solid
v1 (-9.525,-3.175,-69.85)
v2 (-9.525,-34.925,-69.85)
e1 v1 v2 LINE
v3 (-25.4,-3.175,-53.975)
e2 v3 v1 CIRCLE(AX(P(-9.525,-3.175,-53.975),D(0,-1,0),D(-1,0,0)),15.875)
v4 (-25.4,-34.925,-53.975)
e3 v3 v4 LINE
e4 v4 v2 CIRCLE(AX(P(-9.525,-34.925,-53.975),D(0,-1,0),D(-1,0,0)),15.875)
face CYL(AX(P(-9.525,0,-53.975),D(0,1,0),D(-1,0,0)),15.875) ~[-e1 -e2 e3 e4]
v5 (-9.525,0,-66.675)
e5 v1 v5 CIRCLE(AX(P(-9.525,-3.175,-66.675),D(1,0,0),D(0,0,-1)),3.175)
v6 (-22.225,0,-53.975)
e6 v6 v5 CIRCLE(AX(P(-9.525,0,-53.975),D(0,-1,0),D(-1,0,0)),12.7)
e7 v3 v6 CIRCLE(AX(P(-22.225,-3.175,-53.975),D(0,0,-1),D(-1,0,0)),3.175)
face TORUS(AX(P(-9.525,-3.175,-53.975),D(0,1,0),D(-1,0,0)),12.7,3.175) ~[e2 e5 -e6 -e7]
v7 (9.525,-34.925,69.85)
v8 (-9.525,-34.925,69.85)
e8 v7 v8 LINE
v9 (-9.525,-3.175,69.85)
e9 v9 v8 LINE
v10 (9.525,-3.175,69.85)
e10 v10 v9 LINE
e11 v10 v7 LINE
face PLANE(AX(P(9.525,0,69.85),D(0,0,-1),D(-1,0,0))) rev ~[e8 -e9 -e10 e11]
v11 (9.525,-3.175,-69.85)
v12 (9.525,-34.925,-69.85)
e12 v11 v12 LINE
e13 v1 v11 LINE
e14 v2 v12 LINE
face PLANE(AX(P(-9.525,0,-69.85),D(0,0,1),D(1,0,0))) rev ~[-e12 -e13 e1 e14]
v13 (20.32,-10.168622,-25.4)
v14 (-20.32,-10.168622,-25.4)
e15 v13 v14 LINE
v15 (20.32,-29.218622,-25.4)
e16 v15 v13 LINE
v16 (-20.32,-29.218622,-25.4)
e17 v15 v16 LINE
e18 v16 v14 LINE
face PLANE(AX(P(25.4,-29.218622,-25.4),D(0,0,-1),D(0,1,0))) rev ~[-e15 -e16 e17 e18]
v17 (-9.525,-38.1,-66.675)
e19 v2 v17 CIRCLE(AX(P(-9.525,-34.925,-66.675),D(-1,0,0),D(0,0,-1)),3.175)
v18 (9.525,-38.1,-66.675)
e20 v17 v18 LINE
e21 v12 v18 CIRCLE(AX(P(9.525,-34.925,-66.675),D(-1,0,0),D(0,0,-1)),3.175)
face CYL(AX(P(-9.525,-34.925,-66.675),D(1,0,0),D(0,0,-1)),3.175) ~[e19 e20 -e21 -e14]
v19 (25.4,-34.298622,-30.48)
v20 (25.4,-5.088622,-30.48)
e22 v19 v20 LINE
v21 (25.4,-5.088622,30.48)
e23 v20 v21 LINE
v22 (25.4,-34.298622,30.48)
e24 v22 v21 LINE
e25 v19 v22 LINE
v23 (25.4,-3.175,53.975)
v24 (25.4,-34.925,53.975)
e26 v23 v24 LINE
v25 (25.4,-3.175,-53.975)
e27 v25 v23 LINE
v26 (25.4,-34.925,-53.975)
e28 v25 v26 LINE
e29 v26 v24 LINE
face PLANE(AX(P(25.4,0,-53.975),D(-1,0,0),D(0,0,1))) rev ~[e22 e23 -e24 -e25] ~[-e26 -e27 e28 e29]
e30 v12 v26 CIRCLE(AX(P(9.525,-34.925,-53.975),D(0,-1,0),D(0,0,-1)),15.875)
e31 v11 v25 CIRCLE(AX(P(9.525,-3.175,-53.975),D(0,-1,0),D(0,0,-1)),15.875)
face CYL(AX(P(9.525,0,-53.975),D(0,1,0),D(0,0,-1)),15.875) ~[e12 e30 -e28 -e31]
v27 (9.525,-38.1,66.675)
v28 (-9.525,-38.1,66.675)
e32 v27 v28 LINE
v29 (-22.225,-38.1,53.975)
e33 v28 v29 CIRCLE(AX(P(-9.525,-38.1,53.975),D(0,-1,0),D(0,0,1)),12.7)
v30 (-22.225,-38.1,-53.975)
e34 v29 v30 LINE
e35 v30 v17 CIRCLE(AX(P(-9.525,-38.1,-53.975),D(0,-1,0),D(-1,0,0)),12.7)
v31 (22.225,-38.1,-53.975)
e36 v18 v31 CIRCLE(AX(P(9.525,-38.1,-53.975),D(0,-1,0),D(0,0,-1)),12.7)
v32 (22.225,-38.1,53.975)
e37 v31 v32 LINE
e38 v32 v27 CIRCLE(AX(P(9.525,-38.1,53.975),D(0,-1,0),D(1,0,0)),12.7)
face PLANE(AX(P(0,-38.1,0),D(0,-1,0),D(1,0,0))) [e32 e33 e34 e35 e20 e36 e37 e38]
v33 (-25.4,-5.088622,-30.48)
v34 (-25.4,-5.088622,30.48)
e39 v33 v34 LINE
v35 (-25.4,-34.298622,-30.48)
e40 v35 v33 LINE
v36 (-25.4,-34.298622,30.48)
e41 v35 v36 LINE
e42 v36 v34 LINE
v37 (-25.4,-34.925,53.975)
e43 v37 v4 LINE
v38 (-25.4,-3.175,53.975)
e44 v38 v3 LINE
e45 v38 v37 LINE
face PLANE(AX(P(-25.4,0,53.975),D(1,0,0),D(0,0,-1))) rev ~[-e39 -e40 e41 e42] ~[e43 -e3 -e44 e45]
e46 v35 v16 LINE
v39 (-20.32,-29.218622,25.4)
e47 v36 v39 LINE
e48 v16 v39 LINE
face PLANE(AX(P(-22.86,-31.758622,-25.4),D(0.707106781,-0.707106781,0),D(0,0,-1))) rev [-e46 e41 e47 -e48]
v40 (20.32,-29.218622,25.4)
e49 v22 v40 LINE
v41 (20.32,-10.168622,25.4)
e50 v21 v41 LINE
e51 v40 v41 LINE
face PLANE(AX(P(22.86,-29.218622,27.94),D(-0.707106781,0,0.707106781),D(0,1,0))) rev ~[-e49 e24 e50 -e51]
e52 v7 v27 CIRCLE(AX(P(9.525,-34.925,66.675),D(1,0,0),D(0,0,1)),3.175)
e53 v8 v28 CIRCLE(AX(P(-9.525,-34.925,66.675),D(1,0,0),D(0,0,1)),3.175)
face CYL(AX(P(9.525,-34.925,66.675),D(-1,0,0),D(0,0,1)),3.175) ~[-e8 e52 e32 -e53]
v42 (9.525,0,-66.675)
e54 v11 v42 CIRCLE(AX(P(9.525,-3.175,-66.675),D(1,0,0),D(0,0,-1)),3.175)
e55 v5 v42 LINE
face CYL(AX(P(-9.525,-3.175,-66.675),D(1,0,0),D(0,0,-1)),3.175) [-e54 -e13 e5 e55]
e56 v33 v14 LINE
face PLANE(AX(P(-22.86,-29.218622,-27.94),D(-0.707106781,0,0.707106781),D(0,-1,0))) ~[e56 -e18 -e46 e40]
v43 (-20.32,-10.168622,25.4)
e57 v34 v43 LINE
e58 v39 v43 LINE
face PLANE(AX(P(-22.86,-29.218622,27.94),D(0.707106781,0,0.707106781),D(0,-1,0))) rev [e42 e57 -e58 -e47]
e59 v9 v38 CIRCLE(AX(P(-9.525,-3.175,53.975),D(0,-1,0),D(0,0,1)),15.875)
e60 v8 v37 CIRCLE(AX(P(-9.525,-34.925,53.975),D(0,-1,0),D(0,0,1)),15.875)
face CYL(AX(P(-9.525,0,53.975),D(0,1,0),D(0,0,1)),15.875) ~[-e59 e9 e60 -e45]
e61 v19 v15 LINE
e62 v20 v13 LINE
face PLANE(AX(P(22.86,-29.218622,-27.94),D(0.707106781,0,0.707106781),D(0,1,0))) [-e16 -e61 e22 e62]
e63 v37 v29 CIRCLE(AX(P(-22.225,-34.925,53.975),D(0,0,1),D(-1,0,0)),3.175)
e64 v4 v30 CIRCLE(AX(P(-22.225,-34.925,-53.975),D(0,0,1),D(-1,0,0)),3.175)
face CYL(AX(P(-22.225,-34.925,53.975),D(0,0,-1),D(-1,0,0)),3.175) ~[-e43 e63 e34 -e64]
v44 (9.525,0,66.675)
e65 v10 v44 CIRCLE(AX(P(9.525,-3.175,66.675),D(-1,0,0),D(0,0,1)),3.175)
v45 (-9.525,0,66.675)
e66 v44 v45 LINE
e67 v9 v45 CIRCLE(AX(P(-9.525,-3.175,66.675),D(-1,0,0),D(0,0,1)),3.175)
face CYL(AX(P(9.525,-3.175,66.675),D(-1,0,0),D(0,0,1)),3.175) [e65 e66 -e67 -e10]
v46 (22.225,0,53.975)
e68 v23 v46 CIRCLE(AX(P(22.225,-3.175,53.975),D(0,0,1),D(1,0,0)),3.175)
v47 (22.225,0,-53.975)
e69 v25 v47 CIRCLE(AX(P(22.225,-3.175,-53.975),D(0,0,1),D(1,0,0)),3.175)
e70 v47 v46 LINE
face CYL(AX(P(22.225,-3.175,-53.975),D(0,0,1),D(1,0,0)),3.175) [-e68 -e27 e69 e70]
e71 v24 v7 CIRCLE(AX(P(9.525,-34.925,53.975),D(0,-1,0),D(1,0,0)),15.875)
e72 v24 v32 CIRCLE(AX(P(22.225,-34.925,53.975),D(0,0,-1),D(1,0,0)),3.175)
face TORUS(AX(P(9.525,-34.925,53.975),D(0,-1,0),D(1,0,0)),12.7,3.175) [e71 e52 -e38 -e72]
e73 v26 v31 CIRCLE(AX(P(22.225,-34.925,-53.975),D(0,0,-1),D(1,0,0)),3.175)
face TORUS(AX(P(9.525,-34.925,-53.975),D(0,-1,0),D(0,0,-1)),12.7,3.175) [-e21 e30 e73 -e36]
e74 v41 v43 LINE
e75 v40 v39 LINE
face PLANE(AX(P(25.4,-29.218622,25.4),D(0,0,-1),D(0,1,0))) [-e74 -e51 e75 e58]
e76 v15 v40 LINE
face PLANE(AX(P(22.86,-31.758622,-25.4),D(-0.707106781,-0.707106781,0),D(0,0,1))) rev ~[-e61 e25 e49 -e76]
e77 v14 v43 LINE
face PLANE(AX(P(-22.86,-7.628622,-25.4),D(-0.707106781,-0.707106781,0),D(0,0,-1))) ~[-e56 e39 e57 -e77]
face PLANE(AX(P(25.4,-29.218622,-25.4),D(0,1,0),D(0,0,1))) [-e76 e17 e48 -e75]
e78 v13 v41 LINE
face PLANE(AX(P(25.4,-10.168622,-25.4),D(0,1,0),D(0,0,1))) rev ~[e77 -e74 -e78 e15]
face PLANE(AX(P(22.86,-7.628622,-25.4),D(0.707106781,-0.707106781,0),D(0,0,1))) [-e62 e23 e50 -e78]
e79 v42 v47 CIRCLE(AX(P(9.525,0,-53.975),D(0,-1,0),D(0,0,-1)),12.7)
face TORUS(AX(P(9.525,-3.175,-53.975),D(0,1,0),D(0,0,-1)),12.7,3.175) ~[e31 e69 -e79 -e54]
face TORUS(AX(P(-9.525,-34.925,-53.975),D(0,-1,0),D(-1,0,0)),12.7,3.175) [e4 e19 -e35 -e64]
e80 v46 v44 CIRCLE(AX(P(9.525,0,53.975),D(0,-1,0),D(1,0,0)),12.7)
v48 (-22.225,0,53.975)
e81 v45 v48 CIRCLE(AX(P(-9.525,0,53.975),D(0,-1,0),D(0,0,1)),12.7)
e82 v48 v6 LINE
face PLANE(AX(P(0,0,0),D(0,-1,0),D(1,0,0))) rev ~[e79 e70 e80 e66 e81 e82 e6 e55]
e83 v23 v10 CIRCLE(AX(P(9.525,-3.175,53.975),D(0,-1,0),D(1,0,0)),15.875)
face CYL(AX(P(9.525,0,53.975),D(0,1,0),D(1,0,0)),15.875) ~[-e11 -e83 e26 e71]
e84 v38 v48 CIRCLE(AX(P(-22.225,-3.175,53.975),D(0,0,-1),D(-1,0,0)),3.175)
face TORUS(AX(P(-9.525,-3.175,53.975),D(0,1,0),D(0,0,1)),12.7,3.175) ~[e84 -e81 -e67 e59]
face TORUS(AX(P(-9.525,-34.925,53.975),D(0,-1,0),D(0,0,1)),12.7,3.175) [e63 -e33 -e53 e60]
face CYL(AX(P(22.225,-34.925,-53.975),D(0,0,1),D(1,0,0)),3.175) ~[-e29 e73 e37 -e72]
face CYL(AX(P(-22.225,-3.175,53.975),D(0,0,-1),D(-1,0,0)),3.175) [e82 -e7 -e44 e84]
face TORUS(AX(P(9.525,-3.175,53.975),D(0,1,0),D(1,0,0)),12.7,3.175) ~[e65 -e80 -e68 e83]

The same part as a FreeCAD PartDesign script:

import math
import FreeCAD as App
import Part
import Sketcher
Q = App.Units.Quantity


def edges_at(feature, points):
    """Names of the edges that pass closest to the given points."""
    edges = feature.Shape.Edges
    near = lambda p: min(range(len(edges)), key=lambda i: edges[i].distToShape(Part.Vertex(*p))[0])
    return sorted({f"Edge{near(p) + 1}" for p in points})

doc = App.newDocument("Part")
body = doc.addObject("PartDesign::Body", "Body")

# Sketch on XZ plane
sketch1 = body.newObject("Sketcher::SketchObject", "Sketch")
sketch1.AttachmentSupport = (doc.getObject("XZ_Plane"), [""])
sketch1.MapMode = "FlatFace"
sketch1.addGeometry(Part.LineSegment(App.Vector(9.525, 69.85, 0), App.Vector(-9.525, 69.85, 0)), False)
sketch1.addGeometry(Part.ArcOfCircle(Part.Circle(App.Vector(-9.525, 53.975, 0), App.Vector(0, 0, 1), 15.875), math.radians(90), math.radians(180)), False)
sketch1.addGeometry(Part.LineSegment(App.Vector(-25.4, 53.975, 0), App.Vector(-25.4, -53.975, 0)), False)
sketch1.addGeometry(Part.ArcOfCircle(Part.Circle(App.Vector(-9.525, -53.975, 0), App.Vector(0, 0, 1), 15.875), math.radians(180), math.radians(270)), False)
sketch1.addGeometry(Part.LineSegment(App.Vector(-9.525, -69.85, 0), App.Vector(9.525, -69.85, 0)), False)
sketch1.addGeometry(Part.ArcOfCircle(Part.Circle(App.Vector(9.525, -53.975, 0), App.Vector(0, 0, 1), 15.875), math.radians(-90), math.radians(0)), False)
sketch1.addGeometry(Part.LineSegment(App.Vector(25.4, -53.975, 0), App.Vector(25.4, 53.975, 0)), False)
sketch1.addGeometry(Part.ArcOfCircle(Part.Circle(App.Vector(9.525, 53.975, 0), App.Vector(0, 0, 1), 15.875), math.radians(0), math.radians(90)), False)
sketch1.addConstraint(Sketcher.Constraint("Tangent", 0, 2, 1, 1))
sketch1.addConstraint(Sketcher.Constraint("Tangent", 1, 2, 2, 1))
sketch1.addConstraint(Sketcher.Constraint("Tangent", 2, 2, 3, 1))
sketch1.addConstraint(Sketcher.Constraint("Tangent", 3, 2, 4, 1))
sketch1.addConstraint(Sketcher.Constraint("Tangent", 4, 2, 5, 1))
sketch1.addConstraint(Sketcher.Constraint("Tangent", 5, 2, 6, 1))
sketch1.addConstraint(Sketcher.Constraint("Tangent", 6, 2, 7, 1))
sketch1.addConstraint(Sketcher.Constraint("Tangent", 7, 2, 0, 1))
sketch1.addConstraint(Sketcher.Constraint("Horizontal", 0))
sketch1.addConstraint(Sketcher.Constraint("Vertical", 2))
sketch1.addConstraint(Sketcher.Constraint("Horizontal", 4))
sketch1.addConstraint(Sketcher.Constraint("Vertical", 6))
sketch1.addConstraint(Sketcher.Constraint("Equal", 1, 3))
sketch1.addConstraint(Sketcher.Constraint("Equal", 3, 5))
sketch1.addConstraint(Sketcher.Constraint("Equal", 5, 7))
sketch1.addConstraint(Sketcher.Constraint("Symmetric", 1, 3, 5, 3, -1, 1))
sketch1.addConstraint(Sketcher.Constraint("DistanceX", 1, 2, -1, 1, Q("1 in")))
sketch1.addConstraint(Sketcher.Constraint("Radius", 1, Q("0.625 in")))
sketch1.addConstraint(Sketcher.Constraint("DistanceY", 2, 2, 2, 1, Q("4.25 in")))
pad1 = body.newObject("PartDesign::Pad", "Pad")
pad1.Profile = sketch1
pad1.Length = Q("1.5 in")
doc.recompute()

fillet = body.newObject("PartDesign::Fillet", "Fillet")
fillet.Base = (pad1, edges_at(pad1, [(25.4, -38.1, 0), (25.4, 0, 0)]))
fillet.Radius = Q("0.125 in")

# Sketch on YZ plane
sketch2 = body.newObject("Sketcher::SketchObject", "Sketch001")
sketch2.AttachmentSupport = (doc.getObject("YZ_Plane"), [""])
sketch2.MapMode = "FlatFace"
sketch2.AttachmentOffset = App.Placement(App.Vector(0, 0, 1 * 25.4), App.Rotation())
sketch2.addGeometry(Part.LineSegment(App.Vector(-29.218622, 25.4, 0), App.Vector(-29.218622, -25.4, 0)), False)
sketch2.addGeometry(Part.LineSegment(App.Vector(-29.218622, -25.4, 0), App.Vector(-10.168622, -25.4, 0)), False)
sketch2.addGeometry(Part.LineSegment(App.Vector(-10.168622, -25.4, 0), App.Vector(-10.168622, 25.4, 0)), False)
sketch2.addGeometry(Part.LineSegment(App.Vector(-10.168622, 25.4, 0), App.Vector(-29.218622, 25.4, 0)), False)
sketch2.addConstraint(Sketcher.Constraint("Coincident", 0, 2, 1, 1))
sketch2.addConstraint(Sketcher.Constraint("Coincident", 1, 2, 2, 1))
sketch2.addConstraint(Sketcher.Constraint("Coincident", 2, 2, 3, 1))
sketch2.addConstraint(Sketcher.Constraint("Coincident", 3, 2, 0, 1))
sketch2.addConstraint(Sketcher.Constraint("Vertical", 0))
sketch2.addConstraint(Sketcher.Constraint("Horizontal", 1))
sketch2.addConstraint(Sketcher.Constraint("Vertical", 2))
sketch2.addConstraint(Sketcher.Constraint("Horizontal", 3))
sketch2.addConstraint(Sketcher.Constraint("DistanceY", 0, 2, 0, 1, Q("2 in")))
sketch2.addConstraint(Sketcher.Constraint("DistanceY", 0, 2, -1, 1, Q("1 in")))
sketch2.addConstraint(Sketcher.Constraint("DistanceX", 1, 1, 1, 2, Q("0.75 in")))
sketch2.addConstraint(Sketcher.Constraint("DistanceX", 0, 2, -1, 1, Q("29.218622 mm")))
pocket1 = body.newObject("PartDesign::Pocket", "Pocket")
pocket1.Profile = sketch2
pocket1.Type = "ThroughAll"
doc.recompute()

chamfer = body.newObject("PartDesign::Chamfer", "Chamfer")
chamfer.Base = (pocket1, edges_at(pocket1, [
    (-25.4, -19.05, 53.975),
    (-25.4, -3.175, 0),
    (-25.4, -34.925, 0),
    (-25.4, -19.05, -53.975),
    (-25.4, -19.694, -25.4),
    (-25.4, -10.169, 0),
    (-25.4, -19.694, 25.4),
    (-25.4, -29.219, 0),
    (25.4, -19.05, -53.975),
    (25.4, -3.175, 0),
    (25.4, -34.925, 0),
    (25.4, -19.05, 53.975),
    (25.4, -29.219, 0),
    (25.4, -19.694, 25.4),
    (25.4, -10.169, 0),
    (25.4, -19.694, -25.4),
]))
chamfer.Size = Q("0.2 in")

doc.recompute()
